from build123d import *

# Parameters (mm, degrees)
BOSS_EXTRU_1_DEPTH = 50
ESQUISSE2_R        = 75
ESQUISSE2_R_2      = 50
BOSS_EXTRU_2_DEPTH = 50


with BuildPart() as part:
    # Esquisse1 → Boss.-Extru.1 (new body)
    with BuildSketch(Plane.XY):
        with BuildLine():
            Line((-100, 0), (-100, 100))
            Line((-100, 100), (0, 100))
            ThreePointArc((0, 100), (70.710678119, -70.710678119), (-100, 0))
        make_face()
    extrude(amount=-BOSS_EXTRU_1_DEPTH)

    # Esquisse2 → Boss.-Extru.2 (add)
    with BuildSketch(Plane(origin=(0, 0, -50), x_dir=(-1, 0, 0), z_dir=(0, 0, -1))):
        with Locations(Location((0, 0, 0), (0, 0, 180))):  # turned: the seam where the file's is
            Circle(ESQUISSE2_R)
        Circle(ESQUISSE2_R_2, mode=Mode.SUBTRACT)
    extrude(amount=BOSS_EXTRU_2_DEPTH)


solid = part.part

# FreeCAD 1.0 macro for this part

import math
import FreeCAD as App
import Part
import Sketcher

V = App.Vector

doc = App.newDocument("Part")
body = doc.addObject("PartDesign::Body", "Body")

sketch1 = body.newObject("Sketcher::SketchObject", "Sketch")
sketch1.AttachmentSupport = (doc.getObject("XY_Plane"), [""])
sketch1.MapMode = "FlatFace"
sketch1.addGeometry(Part.LineSegment(V(-100, 100, 0), V(-100, 0, 0)), False)
sketch1.addGeometry(Part.ArcOfCircle(Part.Circle(V(0, 0, 0), V(0, 0, 1), 100), math.radians(180), math.radians(450)), False)
sketch1.addGeometry(Part.LineSegment(V(0, 100, 0), V(-100, 100, 0)), False)
sketch1.addConstraint(Sketcher.Constraint("Tangent", 0, 2, 1, 1))
sketch1.addConstraint(Sketcher.Constraint("Tangent", 1, 2, 2, 1))
sketch1.addConstraint(Sketcher.Constraint("Coincident", 2, 2, 0, 1))
sketch1.addConstraint(Sketcher.Constraint("Vertical", 0))
sketch1.addConstraint(Sketcher.Constraint("Horizontal", 2))
sketch1.addConstraint(Sketcher.Constraint("Coincident", 1, 3, -1, 1))
sketch1.addConstraint(Sketcher.Constraint("Radius", 1, 100.0))
pad1 = body.newObject("PartDesign::Pad", "Pad")
pad1.Profile = sketch1
pad1.Length = 50
pad1.Reversed = True

sketch2 = body.newObject("Sketcher::SketchObject", "Sketch001")
sketch2.AttachmentSupport = (doc.getObject("XY_Plane"), [""])
sketch2.MapMode = "FlatFace"
sketch2.AttachmentOffset = App.Placement(V(0, 0, -50), App.Rotation())
sketch2.addGeometry(Part.Circle(V(0, 0, 0), V(0, 0, 1), 75), False)
sketch2.addGeometry(Part.Circle(V(0, 0, 0), V(0, 0, 1), 50), False)
sketch2.addConstraint(Sketcher.Constraint("Coincident", 0, 3, -1, 1))
sketch2.addConstraint(Sketcher.Constraint("Coincident", 1, 3, -1, 1))
sketch2.addConstraint(Sketcher.Constraint("Diameter", 0, 150.0))
sketch2.addConstraint(Sketcher.Constraint("Diameter", 1, 100.0))
pad2 = body.newObject("PartDesign::Pad", "Pad001")
pad2.Profile = sketch2
pad2.Length = 50
pad2.Reversed = True

doc.recompute()
